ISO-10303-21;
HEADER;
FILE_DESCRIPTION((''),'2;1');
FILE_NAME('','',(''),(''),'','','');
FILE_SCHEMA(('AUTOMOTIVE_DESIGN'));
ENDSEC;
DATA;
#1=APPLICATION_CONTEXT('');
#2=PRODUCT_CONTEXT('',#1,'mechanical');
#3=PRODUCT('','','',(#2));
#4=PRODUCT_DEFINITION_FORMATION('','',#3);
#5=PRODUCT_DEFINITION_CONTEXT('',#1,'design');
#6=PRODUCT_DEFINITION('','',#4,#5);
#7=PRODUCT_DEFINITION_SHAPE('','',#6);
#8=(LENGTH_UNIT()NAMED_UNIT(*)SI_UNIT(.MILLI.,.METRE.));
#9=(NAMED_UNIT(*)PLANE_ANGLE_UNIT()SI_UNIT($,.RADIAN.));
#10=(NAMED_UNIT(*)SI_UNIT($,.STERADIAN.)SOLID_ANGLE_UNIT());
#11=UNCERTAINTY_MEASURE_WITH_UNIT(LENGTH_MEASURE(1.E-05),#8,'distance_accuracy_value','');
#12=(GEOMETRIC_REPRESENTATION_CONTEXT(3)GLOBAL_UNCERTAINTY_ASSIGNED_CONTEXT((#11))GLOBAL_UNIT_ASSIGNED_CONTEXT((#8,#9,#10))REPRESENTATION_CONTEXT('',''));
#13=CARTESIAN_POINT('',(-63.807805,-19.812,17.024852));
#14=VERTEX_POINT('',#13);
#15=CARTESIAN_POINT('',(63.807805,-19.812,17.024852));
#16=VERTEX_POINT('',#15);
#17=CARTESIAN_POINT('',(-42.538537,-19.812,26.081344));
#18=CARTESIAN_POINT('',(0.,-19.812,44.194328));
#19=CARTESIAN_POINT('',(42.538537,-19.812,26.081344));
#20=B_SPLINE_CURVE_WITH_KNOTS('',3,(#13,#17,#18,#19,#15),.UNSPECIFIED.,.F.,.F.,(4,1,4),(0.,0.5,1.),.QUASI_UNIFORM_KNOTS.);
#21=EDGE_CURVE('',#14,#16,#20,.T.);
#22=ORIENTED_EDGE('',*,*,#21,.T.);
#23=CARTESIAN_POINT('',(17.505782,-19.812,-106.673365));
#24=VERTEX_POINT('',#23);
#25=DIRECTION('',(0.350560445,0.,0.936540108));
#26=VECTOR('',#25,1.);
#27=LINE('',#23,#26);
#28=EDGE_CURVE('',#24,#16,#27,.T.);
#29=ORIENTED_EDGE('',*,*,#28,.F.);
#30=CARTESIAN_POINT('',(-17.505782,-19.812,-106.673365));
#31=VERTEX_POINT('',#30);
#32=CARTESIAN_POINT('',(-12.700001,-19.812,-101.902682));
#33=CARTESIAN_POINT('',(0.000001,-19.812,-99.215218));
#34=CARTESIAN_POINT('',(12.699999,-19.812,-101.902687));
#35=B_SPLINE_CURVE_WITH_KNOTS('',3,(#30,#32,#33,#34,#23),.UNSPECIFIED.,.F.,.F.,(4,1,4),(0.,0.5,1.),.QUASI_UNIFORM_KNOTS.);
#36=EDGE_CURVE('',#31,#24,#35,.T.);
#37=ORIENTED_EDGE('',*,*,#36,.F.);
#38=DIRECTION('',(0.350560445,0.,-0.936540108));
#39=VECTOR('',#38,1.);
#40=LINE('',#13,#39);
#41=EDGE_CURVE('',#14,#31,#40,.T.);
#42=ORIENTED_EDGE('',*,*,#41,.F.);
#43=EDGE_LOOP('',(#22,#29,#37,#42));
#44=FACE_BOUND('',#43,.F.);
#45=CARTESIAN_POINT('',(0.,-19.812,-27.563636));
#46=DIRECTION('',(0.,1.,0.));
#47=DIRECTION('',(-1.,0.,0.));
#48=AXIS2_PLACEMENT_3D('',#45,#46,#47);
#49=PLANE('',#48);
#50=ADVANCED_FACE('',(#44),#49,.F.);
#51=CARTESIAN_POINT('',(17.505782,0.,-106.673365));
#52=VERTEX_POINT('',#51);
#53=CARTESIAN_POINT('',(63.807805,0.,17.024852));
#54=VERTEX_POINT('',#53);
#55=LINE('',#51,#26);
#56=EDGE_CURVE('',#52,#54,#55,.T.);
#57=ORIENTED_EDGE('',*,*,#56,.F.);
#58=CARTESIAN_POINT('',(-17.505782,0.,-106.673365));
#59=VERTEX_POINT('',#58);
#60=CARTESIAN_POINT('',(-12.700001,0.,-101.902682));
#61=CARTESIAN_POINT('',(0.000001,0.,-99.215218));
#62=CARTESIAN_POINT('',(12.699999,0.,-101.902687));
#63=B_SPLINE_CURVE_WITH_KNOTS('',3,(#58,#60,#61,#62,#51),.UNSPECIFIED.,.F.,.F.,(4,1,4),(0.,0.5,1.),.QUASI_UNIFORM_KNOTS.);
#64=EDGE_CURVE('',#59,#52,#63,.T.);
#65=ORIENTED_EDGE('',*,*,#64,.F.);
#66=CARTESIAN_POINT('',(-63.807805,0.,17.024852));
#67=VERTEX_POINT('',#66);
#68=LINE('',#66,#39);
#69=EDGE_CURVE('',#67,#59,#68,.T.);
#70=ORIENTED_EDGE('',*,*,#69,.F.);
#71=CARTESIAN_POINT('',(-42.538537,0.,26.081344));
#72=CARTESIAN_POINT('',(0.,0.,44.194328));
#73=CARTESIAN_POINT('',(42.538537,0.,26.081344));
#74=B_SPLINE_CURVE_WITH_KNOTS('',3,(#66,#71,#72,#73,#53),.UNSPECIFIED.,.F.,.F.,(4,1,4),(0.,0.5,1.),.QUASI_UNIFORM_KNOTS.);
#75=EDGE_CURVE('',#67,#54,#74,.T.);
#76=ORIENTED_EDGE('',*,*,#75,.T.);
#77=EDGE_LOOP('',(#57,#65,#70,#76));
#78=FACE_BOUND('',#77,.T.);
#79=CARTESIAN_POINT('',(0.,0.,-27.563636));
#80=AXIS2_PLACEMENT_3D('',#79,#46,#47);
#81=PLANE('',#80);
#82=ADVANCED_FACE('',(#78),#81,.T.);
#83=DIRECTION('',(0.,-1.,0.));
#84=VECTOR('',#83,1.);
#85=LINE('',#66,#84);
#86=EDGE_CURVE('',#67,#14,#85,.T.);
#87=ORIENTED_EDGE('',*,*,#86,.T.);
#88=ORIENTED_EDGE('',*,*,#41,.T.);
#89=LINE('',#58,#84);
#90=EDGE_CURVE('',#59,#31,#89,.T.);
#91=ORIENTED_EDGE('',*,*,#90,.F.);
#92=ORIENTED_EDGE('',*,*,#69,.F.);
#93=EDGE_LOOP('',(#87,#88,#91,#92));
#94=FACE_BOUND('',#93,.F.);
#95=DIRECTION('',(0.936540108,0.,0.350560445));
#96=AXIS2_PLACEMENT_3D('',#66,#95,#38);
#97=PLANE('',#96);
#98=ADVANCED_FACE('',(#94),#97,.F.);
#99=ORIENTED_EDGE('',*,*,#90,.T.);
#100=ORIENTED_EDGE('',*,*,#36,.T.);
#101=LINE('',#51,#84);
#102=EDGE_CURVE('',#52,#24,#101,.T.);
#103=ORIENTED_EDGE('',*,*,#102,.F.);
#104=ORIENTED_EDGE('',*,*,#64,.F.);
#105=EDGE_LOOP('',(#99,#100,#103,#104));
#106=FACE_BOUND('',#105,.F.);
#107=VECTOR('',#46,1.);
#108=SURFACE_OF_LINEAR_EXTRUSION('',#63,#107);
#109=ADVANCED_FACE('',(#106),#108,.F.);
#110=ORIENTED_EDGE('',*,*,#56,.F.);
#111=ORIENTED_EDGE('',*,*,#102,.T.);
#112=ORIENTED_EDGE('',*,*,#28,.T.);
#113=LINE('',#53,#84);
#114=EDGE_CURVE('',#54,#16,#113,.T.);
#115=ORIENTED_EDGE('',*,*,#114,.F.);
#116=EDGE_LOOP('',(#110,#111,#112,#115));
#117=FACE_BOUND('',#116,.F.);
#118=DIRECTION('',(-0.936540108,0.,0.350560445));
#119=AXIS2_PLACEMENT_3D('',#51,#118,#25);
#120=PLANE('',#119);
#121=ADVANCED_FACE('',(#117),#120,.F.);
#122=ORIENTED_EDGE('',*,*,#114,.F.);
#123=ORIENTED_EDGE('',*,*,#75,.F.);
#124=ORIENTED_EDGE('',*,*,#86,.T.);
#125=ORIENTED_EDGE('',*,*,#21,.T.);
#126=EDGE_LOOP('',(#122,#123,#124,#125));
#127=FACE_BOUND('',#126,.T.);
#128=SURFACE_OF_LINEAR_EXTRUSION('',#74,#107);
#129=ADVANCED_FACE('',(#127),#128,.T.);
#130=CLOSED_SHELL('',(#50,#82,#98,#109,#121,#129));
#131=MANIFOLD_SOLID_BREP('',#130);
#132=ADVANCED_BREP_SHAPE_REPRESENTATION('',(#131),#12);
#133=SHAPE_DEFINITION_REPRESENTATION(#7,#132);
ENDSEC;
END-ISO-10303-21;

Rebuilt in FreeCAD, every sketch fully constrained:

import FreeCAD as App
import Part
import Sketcher

V = App.Vector
Q = App.Units.Quantity

doc = App.newDocument("Part")
body = doc.addObject("PartDesign::Body", "Body")

sketch1 = doc.addObject("Sketcher::SketchObject", "Sketch")
body.addObject(sketch1)
sketch1.AttachmentSupport = (doc.XZ_Plane, [""])
sketch1.MapMode = "FlatFace"
sketch1.addGeometry(Part.BSplineCurve([V(-63.807805, 17.024852, 0), V(-42.538537, 26.081344, 0), V(0, 44.194328, 0), V(42.538537, 26.081344, 0), V(63.807805, 17.024852, 0)], [4, 1, 4], [0, 0.5, 1], False, 3, [1, 1, 1, 1, 1], False), False)
sketch1.addGeometry(Part.LineSegment(V(-63.807805, 17.024852, 0), V(-17.505782, -106.673365, 0)), False)
sketch1.addGeometry(Part.BSplineCurve([V(-17.505782, -106.673365, 0), V(-12.700001, -101.902682, 0), V(0.000001, -99.215218, 0), V(12.699999, -101.902687, 0), V(17.505782, -106.673365, 0)], [4, 1, 4], [0, 0.5, 1], False, 3, [1, 1, 1, 1, 1], False), False)
sketch1.addGeometry(Part.LineSegment(V(17.505782, -106.673365, 0), V(63.807805, 17.024852, 0)), False)
sketch1.addConstraint(Sketcher.Constraint("Block", 0))
sketch1.addConstraint(Sketcher.Constraint("Block", 2))
sketch1.addConstraint(Sketcher.Constraint("Coincident", 0, 1, 1, 1))
sketch1.addConstraint(Sketcher.Constraint("Coincident", 1, 2, 2, 1))
sketch1.addConstraint(Sketcher.Constraint("Coincident", 2, 2, 3, 1))
sketch1.addConstraint(Sketcher.Constraint("Coincident", 3, 2, 0, 2))
pad1 = doc.addObject("PartDesign::Pad", "Pad")
body.addObject(pad1)
pad1.Profile = sketch1
pad1.Length = Q("0.78 in")

doc.recompute()
